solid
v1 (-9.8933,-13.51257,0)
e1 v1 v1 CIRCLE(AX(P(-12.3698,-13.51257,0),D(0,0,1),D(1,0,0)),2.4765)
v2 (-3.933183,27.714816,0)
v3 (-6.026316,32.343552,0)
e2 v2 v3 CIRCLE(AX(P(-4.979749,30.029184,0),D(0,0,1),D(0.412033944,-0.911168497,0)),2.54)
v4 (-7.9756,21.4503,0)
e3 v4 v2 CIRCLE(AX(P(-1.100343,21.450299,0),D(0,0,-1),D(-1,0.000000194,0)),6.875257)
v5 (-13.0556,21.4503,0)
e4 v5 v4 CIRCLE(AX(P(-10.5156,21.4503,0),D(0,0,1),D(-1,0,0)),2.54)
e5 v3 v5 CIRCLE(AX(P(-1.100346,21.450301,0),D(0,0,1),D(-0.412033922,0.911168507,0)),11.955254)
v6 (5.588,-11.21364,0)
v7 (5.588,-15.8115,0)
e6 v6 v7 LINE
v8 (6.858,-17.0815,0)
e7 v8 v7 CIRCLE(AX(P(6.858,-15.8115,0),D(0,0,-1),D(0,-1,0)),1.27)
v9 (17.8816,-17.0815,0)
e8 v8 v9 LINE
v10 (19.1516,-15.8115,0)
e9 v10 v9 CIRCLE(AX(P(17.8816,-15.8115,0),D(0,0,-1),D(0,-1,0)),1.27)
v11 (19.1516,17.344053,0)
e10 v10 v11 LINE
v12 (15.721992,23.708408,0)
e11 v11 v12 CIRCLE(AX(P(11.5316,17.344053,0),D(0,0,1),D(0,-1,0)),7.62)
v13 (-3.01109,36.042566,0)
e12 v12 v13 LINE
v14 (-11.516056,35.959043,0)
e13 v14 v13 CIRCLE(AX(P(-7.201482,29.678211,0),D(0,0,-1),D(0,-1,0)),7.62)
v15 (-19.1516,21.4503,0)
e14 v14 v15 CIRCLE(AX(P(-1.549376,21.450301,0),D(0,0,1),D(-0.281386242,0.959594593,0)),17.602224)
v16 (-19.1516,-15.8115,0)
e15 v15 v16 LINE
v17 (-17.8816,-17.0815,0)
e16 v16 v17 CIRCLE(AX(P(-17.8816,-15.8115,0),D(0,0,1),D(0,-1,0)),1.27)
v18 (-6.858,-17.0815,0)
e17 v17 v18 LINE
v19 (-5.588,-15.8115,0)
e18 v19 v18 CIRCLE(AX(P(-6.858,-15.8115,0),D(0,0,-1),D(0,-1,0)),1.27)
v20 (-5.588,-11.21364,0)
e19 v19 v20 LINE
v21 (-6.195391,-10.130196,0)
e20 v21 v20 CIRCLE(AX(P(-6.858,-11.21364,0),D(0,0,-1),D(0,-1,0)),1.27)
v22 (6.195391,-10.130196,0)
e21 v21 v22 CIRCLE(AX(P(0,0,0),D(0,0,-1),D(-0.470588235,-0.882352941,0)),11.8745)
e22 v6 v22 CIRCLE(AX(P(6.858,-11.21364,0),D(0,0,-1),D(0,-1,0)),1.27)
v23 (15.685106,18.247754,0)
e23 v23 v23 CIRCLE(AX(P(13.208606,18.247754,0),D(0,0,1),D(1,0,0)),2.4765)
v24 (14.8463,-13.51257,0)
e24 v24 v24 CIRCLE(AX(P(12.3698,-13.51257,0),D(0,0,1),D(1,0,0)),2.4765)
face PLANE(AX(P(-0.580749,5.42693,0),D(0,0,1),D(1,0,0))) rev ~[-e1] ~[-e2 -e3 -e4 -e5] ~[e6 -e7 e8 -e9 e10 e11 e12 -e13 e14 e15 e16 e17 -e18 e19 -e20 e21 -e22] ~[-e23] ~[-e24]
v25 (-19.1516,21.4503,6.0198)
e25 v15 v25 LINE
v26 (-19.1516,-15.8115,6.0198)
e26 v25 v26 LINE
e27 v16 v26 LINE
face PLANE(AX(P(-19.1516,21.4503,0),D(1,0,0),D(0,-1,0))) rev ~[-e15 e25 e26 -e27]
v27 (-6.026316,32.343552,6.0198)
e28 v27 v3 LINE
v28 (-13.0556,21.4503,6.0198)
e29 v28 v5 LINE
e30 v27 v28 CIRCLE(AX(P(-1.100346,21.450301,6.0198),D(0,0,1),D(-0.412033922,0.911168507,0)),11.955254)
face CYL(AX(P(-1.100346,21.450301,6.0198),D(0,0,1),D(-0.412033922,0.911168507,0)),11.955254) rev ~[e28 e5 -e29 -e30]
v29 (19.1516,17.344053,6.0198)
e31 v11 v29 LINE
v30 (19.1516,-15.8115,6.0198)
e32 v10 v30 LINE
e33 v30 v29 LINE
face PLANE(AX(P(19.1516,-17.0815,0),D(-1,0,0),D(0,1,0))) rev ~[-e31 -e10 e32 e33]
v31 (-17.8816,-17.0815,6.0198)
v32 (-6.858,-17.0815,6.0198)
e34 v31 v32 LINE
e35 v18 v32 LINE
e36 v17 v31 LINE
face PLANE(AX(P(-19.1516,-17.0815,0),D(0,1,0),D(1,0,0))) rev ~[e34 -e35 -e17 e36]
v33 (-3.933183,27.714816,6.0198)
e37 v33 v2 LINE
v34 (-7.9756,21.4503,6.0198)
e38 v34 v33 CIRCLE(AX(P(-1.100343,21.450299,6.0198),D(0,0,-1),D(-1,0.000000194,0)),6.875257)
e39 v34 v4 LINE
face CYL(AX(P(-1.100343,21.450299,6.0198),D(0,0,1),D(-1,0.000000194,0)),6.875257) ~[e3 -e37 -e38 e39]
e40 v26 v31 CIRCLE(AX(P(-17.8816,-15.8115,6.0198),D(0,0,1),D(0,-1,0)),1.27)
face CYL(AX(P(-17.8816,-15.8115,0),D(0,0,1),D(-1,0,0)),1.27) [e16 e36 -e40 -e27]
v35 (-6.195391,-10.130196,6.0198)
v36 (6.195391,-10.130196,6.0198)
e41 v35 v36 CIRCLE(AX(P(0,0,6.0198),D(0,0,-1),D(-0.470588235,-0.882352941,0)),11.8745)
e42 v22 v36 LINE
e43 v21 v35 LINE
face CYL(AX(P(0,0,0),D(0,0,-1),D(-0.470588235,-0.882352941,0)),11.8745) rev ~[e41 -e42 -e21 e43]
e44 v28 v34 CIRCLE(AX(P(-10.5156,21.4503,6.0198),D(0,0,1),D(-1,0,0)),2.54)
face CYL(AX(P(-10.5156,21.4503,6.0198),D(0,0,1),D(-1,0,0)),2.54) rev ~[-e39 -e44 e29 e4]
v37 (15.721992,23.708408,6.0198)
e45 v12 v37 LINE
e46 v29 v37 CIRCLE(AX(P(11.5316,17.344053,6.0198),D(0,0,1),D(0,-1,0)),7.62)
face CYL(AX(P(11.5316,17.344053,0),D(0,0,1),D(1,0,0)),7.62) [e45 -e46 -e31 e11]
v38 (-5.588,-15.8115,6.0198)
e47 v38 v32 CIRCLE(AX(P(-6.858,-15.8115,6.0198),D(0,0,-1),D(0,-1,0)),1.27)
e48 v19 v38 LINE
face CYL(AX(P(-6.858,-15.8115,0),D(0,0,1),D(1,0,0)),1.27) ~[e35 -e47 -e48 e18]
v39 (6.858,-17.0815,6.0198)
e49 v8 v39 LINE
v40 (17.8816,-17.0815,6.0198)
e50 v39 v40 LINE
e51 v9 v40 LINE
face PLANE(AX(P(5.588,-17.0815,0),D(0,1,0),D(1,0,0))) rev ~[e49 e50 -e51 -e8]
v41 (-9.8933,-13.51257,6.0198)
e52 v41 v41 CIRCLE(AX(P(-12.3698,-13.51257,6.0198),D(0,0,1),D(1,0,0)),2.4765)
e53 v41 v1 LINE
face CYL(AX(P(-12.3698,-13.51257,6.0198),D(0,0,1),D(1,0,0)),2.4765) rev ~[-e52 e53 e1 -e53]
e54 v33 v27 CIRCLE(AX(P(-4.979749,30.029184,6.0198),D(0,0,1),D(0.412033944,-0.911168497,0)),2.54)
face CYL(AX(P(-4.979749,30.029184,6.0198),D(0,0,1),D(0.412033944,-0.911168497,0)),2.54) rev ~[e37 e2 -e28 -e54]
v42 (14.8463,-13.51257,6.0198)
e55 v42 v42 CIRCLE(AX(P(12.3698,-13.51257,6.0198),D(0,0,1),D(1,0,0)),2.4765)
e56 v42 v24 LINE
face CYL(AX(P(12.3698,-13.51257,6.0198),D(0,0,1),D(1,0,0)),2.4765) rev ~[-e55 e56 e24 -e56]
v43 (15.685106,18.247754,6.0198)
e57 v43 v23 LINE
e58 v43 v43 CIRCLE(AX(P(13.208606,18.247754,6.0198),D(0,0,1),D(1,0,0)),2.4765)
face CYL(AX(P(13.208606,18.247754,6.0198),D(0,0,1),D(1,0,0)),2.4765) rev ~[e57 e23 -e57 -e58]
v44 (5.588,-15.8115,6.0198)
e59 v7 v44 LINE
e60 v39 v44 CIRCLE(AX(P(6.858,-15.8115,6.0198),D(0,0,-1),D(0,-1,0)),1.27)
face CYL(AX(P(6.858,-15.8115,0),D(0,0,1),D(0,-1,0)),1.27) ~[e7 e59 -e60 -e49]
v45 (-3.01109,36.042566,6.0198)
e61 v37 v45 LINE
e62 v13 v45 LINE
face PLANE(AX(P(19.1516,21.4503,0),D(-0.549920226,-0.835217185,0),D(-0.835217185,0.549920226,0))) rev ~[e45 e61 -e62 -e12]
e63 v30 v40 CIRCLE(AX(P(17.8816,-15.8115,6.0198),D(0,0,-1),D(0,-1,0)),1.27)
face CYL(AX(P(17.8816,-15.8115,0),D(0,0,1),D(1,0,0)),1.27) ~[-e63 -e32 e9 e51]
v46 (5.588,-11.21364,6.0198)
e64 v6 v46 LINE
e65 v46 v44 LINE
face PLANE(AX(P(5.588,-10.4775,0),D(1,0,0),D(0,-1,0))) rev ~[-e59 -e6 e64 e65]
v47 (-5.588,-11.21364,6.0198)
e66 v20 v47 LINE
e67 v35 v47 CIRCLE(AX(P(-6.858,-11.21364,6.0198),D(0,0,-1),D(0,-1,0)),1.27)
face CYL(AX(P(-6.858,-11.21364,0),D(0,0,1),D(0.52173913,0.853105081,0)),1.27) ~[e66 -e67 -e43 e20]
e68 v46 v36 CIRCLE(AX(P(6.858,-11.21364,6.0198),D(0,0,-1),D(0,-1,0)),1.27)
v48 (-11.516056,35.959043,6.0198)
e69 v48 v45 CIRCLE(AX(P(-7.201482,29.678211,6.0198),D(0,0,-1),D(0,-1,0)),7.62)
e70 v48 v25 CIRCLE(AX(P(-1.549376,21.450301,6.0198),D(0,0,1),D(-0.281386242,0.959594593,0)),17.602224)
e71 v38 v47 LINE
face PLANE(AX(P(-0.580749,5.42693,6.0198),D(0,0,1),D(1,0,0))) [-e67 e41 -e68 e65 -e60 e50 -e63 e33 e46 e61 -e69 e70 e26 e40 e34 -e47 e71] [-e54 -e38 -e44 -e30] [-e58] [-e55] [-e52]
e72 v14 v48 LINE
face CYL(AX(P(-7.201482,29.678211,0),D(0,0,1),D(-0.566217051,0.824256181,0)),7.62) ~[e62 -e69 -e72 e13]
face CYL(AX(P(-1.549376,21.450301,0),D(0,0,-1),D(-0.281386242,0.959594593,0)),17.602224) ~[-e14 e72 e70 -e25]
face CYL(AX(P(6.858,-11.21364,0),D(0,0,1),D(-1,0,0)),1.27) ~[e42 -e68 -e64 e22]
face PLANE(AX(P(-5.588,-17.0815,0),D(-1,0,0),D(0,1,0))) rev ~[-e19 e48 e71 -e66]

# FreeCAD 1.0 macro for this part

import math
import FreeCAD as App
import Part
import Sketcher
from FreeCAD import Vector
Q = App.Units.Quantity


def edges_at(feature, points):
    """Names of the edges that pass closest to the given points."""
    edges = feature.Shape.Edges
    near = lambda p: min(range(len(edges)), key=lambda i: edges[i].distToShape(Part.Vertex(*p))[0])
    return sorted({f"Edge{near(p) + 1}" for p in points})

doc = App.newDocument("Part")
body = doc.addObject("PartDesign::Body", "Body")

# Sketch on XY plane
sketch1 = body.newObject("Sketcher::SketchObject", "Sketch")
sketch1.AttachmentSupport = (doc.getObject("XY_Plane"), [""])
sketch1.MapMode = "FlatFace"
sketch1.addGeometry([
    Part.ArcOfCircle(Part.Circle(Vector(0, 0, 0), Vector(0, 0, 1), 11.8745), math.radians(-61.927513), math.radians(241.927513)),  # 0
    Part.LineSegment(Vector(5.588, -10.4775, 0), Vector(5.588, -17.0815, 0)),  # 1
    Part.LineSegment(Vector(5.588, -17.0815, 0), Vector(19.1516, -17.0815, 0)),  # 2
    Part.LineSegment(Vector(19.1516, -17.0815, 0), Vector(19.1516, 21.4503, 0)),  # 3
    Part.LineSegment(Vector(19.1516, 21.4503, 0), Vector(-6.5024, 38.3413, 0)),  # 4
    Part.ArcOfCircle(Part.Circle(Vector(-1.549376, 21.450301, 0), Vector(0, 0, 1), 17.602224), math.radians(106.342957), math.radians(180.000005)),  # 5
    Part.LineSegment(Vector(-19.1516, 21.4503, 0), Vector(-19.1516, -17.0815, 0)),  # 6
    Part.LineSegment(Vector(-19.1516, -17.0815, 0), Vector(-5.588, -17.0815, 0)),  # 7
    Part.LineSegment(Vector(-5.588, -17.0815, 0), Vector(-5.588, -10.4775, 0)),  # 8
], False)
sketch1.addConstraint([
    Sketcher.Constraint("Coincident", 0, 1, 1, 1),
    Sketcher.Constraint("Coincident", 1, 2, 2, 1),
    Sketcher.Constraint("Coincident", 2, 2, 3, 1),
    Sketcher.Constraint("Coincident", 3, 2, 4, 1),
    Sketcher.Constraint("Coincident", 4, 2, 5, 1),
    Sketcher.Constraint("Tangent", 5, 2, 6, 1),
    Sketcher.Constraint("Coincident", 6, 2, 7, 1),
    Sketcher.Constraint("Coincident", 7, 2, 8, 1),
    Sketcher.Constraint("Coincident", 8, 2, 0, 2),
    Sketcher.Constraint("Vertical", 1),
    Sketcher.Constraint("Horizontal", 2),
    Sketcher.Constraint("Vertical", 3),
    Sketcher.Constraint("Vertical", 6),
    Sketcher.Constraint("Horizontal", 7),
    Sketcher.Constraint("Vertical", 8),
    Sketcher.Constraint("Coincident", 0, 3, -1, 1),
    Sketcher.Constraint("Symmetric", 3, 2, 5, 2, -2),
    Sketcher.Constraint("Symmetric", 1, 2, 7, 2, -2),
    Sketcher.Constraint("DistanceY", 1, 2, 1, 1, Q("0.26 in")),
    Sketcher.Constraint("Radius", 0, Q("0.4675 in")),
    Sketcher.Constraint("DistanceX", 2, 1, 2, 2, Q("0.534 in")),
    Sketcher.Constraint("DistanceY", 3, 1, 3, 2, Q("1.517 in")),
    Sketcher.Constraint("DistanceX", -1, 1, 0, 1, Q("0.22 in")),
    Sketcher.Constraint("DistanceX", 4, 2, 3, 2, Q("1.01 in")),
    Sketcher.Constraint("DistanceY", 5, 3, 4, 2, Q("0.6649999 in")),
])
pad1 = body.newObject("PartDesign::Pad", "Pad")
pad1.Profile = sketch1
pad1.Length = Q("0.237 in")

# Sketch on XY plane
sketch2 = body.newObject("Sketcher::SketchObject", "Sketch001")
sketch2.AttachmentSupport = (doc.getObject("XY_Plane"), [""])
sketch2.MapMode = "FlatFace"
sketch2.AttachmentOffset = App.Placement(Vector(0, 0, 0.237 * 25.4), App.Rotation())
sketch2.addGeometry([
    Part.ArcOfCircle(Part.Circle(Vector(-1.100346, 21.450301, 0), Vector(0, 0, 1), 11.955254), math.radians(114.332667), math.radians(180.000004)),
    Part.ArcOfCircle(Part.Circle(Vector(-10.5156, 21.4503, 0), Vector(0, 0, 1), 2.54), math.radians(180), math.radians(360)),
    Part.ArcOfCircle(Part.Circle(Vector(-1.100343, 21.450299, 0), Vector(0, 0, 1), 6.875257), math.radians(114.332676), math.radians(179.999989)),
    Part.ArcOfCircle(Part.Circle(Vector(-4.979749, 30.029184, 0), Vector(0, 0, 1), 2.54), math.radians(-65.667332), math.radians(114.332679)),
], False)
sketch2.addConstraint([
    Sketcher.Constraint("Tangent", 0, 2, 1, 1),
    Sketcher.Constraint("Tangent", 1, 2, 2, 2),
    Sketcher.Constraint("Tangent", 2, 1, 3, 1),
    Sketcher.Constraint("Tangent", 3, 2, 0, 1),
    Sketcher.Constraint("Coincident", 2, 3, 0, 3),
    Sketcher.Constraint("Horizontal", 0, 3, 1, 3),
    Sketcher.Constraint("Radius", 1, Q("0.1 in")),
    Sketcher.Constraint("DistanceX", 1, 3, -1, 1, Q("0.414 in")),
    Sketcher.Constraint("DistanceY", -1, 1, 0, 3, Q("0.8445 in")),
    Sketcher.Constraint("Radius", 0, 11.955254),
    Sketcher.Constraint("DistanceX", 3, 3, -1, 1, 4.979749),
])
pocket1 = body.newObject("PartDesign::Pocket", "Pocket")
pocket1.Profile = sketch2
pocket1.Type = "ThroughAll"
doc.recompute()

fillet = body.newObject("PartDesign::Fillet", "Fillet")
fillet.Base = (pocket1, edges_at(pocket1, [(-6.502, 38.341, 3.01), (19.152, 21.45, 3.01)]))
fillet.Radius = Q("0.3 in")
doc.recompute()

fillet2 = body.newObject("PartDesign::Fillet", "Fillet001")
fillet2.Base = (fillet, edges_at(fillet, [
    (-19.152, -17.081, 3.01),
    (-5.588, -17.081, 3.01),
    (5.588, -17.081, 3.01),
    (19.152, -17.081, 3.01),
    (5.588, -10.477, 3.01),
    (-5.588, -10.477, 3.01),
]))
fillet2.Radius = Q("0.05 in")

# Sketch on XY plane
sketch3 = body.newObject("Sketcher::SketchObject", "Sketch002")
sketch3.AttachmentSupport = (doc.getObject("XY_Plane"), [""])
sketch3.MapMode = "FlatFace"
sketch3.AttachmentOffset = App.Placement(Vector(0, 0, 0.237 * 25.4), App.Rotation())
sketch3.addGeometry([
    Part.Circle(Vector(13.208606, 18.247754, 0), Vector(0, 0, 1), 2.4765),
    Part.Circle(Vector(-12.3698, -13.51257, 0), Vector(0, 0, 1), 2.4765),
    Part.Circle(Vector(12.3698, -13.51257, 0), Vector(0, 0, 1), 2.4765),
], False)
sketch3.addConstraint([
    Sketcher.Constraint("Equal", 0, 1),
    Sketcher.Constraint("Equal", 1, 2),
    Sketcher.Constraint("Symmetric", 1, 3, 2, 3, -2),
    Sketcher.Constraint("Diameter", 0, Q("0.195 in")),
    Sketcher.Constraint("DistanceX", 1, 3, -1, 1, Q("0.487 in")),
    Sketcher.Constraint("DistanceY", 1, 3, -1, 1, 13.51257),
    Sketcher.Constraint("DistanceX", -1, 1, 0, 3, 13.208606),
    Sketcher.Constraint("DistanceY", -1, 1, 0, 3, 18.247754),
])
pocket2 = body.newObject("PartDesign::Pocket", "Pocket001")
pocket2.Profile = sketch3
pocket2.Type = "ThroughAll"

doc.recompute()
